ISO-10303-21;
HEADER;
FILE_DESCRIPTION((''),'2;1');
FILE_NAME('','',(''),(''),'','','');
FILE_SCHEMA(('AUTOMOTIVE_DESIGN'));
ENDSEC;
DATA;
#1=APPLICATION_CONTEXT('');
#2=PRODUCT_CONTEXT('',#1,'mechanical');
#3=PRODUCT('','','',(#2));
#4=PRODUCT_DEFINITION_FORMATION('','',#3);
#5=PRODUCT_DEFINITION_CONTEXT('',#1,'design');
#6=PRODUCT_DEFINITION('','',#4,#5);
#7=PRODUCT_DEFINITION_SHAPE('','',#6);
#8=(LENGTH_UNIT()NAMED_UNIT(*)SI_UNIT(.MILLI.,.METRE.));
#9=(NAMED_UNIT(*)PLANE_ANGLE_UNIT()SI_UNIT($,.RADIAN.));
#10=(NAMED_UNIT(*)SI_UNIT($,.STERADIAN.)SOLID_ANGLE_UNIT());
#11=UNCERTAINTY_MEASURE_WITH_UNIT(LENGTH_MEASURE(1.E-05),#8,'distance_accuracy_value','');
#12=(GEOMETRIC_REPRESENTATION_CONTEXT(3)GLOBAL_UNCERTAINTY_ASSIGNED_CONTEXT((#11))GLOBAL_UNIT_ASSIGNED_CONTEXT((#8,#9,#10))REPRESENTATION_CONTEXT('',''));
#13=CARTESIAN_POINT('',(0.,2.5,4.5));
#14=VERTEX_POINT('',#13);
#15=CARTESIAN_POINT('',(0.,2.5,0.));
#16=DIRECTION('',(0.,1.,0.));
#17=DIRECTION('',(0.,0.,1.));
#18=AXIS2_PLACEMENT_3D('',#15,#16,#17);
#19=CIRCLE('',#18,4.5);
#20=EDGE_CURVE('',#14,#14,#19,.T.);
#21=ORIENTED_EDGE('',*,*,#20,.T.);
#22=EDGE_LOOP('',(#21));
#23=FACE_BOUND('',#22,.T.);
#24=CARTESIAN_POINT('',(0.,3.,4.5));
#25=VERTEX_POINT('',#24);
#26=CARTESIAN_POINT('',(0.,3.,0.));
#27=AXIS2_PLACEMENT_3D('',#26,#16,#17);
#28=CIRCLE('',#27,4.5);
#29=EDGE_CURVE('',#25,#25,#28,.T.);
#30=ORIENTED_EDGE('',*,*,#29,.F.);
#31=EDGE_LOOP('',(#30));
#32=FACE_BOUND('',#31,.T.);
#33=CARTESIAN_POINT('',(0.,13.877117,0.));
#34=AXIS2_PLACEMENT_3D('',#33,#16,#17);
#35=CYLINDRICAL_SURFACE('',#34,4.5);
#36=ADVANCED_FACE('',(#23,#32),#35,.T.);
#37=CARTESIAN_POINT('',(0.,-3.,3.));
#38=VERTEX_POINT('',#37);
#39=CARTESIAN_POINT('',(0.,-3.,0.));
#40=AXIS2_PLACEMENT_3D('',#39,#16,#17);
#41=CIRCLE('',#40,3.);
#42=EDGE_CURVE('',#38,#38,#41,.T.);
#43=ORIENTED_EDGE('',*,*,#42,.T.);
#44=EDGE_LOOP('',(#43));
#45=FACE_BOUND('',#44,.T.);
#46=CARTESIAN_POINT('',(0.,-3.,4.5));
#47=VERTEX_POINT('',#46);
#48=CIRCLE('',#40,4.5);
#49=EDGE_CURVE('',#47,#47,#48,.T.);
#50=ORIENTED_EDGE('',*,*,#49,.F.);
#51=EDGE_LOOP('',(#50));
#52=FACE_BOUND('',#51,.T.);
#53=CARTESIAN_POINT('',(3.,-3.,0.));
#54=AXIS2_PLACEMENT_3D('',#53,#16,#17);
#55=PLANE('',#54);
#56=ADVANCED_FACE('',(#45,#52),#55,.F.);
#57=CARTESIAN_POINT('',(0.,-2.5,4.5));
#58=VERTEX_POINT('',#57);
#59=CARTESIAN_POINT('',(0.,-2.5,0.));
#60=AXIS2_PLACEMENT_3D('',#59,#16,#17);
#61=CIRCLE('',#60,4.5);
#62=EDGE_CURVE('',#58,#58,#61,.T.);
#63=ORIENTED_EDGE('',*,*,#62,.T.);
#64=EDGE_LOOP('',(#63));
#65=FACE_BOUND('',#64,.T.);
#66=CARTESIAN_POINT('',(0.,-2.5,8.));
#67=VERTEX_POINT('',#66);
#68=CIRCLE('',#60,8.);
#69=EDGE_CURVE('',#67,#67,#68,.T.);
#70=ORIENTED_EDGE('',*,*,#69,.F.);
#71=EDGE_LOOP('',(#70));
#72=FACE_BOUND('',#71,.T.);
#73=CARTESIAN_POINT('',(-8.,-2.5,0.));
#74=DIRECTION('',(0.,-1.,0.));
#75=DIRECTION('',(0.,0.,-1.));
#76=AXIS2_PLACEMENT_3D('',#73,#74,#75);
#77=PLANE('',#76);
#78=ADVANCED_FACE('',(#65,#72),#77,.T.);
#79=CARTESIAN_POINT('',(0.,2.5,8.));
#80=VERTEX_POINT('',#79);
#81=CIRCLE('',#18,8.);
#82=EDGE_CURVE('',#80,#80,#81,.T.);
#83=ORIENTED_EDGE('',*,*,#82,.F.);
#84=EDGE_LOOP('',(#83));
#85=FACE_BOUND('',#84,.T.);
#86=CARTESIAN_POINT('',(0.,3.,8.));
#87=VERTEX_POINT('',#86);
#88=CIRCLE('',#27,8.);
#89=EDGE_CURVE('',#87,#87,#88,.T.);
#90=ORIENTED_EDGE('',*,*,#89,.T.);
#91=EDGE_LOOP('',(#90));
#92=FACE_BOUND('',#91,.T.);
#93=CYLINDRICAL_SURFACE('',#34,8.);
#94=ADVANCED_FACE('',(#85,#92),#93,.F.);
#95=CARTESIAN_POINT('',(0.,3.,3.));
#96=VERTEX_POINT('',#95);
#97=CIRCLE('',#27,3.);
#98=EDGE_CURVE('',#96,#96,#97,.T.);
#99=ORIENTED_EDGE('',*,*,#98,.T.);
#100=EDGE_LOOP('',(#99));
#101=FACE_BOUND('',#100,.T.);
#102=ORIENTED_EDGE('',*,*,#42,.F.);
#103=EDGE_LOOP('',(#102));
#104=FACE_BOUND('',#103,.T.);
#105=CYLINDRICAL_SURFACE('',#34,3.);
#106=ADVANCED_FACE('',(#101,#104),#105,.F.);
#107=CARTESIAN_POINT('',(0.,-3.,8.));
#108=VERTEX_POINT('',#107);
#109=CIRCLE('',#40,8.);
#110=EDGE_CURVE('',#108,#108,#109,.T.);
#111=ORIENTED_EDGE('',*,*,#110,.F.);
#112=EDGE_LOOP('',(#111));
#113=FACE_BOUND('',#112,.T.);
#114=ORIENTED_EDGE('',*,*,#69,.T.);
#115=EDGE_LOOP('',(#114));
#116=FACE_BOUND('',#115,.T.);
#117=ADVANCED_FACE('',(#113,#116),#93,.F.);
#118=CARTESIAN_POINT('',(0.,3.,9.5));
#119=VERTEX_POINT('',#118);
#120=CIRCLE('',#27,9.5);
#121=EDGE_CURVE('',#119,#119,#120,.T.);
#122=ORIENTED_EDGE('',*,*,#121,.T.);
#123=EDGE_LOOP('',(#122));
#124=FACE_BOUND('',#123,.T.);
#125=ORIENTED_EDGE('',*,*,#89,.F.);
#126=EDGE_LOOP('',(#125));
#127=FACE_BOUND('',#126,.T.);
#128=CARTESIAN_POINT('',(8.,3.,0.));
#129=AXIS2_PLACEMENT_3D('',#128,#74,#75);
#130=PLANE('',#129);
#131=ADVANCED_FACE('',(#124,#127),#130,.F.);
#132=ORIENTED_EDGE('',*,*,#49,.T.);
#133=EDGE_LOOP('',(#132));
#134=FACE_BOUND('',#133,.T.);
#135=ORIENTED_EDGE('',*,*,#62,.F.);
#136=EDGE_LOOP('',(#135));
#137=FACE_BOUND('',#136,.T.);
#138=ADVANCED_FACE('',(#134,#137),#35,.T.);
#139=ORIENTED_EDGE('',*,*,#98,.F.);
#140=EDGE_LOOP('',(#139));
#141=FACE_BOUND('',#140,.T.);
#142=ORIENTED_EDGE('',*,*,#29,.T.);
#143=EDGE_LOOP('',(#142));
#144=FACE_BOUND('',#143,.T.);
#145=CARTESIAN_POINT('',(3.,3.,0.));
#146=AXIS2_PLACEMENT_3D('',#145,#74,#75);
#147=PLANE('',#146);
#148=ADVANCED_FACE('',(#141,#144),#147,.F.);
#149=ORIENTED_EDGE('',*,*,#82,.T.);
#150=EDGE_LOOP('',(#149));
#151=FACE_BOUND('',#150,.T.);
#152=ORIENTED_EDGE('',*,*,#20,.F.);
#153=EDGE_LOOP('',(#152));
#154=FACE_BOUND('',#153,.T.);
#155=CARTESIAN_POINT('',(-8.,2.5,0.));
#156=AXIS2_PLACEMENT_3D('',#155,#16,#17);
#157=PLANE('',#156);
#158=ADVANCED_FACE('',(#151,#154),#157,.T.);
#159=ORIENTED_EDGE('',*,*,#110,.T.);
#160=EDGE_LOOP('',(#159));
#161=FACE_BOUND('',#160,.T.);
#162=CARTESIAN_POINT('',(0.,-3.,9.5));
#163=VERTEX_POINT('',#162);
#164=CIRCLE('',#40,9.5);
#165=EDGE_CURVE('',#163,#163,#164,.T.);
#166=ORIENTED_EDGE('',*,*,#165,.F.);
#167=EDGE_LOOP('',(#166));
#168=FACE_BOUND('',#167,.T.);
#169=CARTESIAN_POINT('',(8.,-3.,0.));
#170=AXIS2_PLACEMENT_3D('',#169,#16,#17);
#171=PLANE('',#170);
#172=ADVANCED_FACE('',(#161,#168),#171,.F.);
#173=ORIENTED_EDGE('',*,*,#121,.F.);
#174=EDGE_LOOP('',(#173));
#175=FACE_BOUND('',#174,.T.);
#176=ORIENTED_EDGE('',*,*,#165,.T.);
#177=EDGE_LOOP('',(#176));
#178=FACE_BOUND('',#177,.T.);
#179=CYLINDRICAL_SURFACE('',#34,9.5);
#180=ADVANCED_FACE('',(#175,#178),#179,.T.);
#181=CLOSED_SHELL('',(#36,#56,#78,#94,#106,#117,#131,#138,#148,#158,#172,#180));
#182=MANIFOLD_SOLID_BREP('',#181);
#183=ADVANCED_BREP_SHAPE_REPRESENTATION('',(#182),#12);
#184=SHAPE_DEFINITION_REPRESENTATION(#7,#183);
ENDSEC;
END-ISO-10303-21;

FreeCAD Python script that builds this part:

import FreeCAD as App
import Part
import Sketcher

V = App.Vector

doc = App.newDocument("Part")
params = doc.addObject("Spreadsheet::Sheet", "Params")
for row, (alias, value) in enumerate([
    ("sketch1_height", "6 mm"),
    ("sketch1_width", "1.5 mm"),
    ("revolution_angle", "360 deg"),
    ("sketch2_height", "5 mm"),
    ("sketch2_width", "3.5 mm"),
    ("revolution2_angle", "360 deg"),
], start=1):
    params.set(f"A{row}", alias)
    params.set(f"B{row}", "=" + value)
    params.setAlias(f"B{row}", alias)

body = doc.addObject("PartDesign::Body", "Body")
body.AllowCompound = True

# Sketch on XY plane
sketch1 = doc.addObject("Sketcher::SketchObject", "Sketch")
body.addObject(sketch1)
sketch1.AttachmentSupport = (doc.XY_Plane, [""])
sketch1.MapMode = "FlatFace"
sketch1.addGeometry(Part.LineSegment(V(3, 3, 0), V(3, -3, 0)), False)
sketch1.addGeometry(Part.LineSegment(V(3, -3, 0), V(4.5, -3, 0)), False)
sketch1.addGeometry(Part.LineSegment(V(4.5, -3, 0), V(4.5, 3, 0)), False)
sketch1.addGeometry(Part.LineSegment(V(4.5, 3, 0), V(3, 3, 0)), False)
sketch1.addGeometry(Part.LineSegment(V(8, 3, 0), V(8, -3, 0)), False)
sketch1.addGeometry(Part.LineSegment(V(8, -3, 0), V(9.5, -3, 0)), False)
sketch1.addGeometry(Part.LineSegment(V(9.5, -3, 0), V(9.5, 3, 0)), False)
sketch1.addGeometry(Part.LineSegment(V(9.5, 3, 0), V(8, 3, 0)), False)
sketch1.addConstraint(Sketcher.Constraint("Coincident", 0, 2, 1, 1))
sketch1.addConstraint(Sketcher.Constraint("Coincident", 1, 2, 2, 1))
sketch1.addConstraint(Sketcher.Constraint("Coincident", 2, 2, 3, 1))
sketch1.addConstraint(Sketcher.Constraint("Coincident", 3, 2, 0, 1))
sketch1.addConstraint(Sketcher.Constraint("Coincident", 4, 2, 5, 1))
sketch1.addConstraint(Sketcher.Constraint("Coincident", 5, 2, 6, 1))
sketch1.addConstraint(Sketcher.Constraint("Coincident", 6, 2, 7, 1))
sketch1.addConstraint(Sketcher.Constraint("Coincident", 7, 2, 4, 1))
sketch1.addConstraint(Sketcher.Constraint("Vertical", 0))
sketch1.addConstraint(Sketcher.Constraint("Horizontal", 1))
sketch1.addConstraint(Sketcher.Constraint("Vertical", 2))
sketch1.addConstraint(Sketcher.Constraint("Horizontal", 3))
sketch1.addConstraint(Sketcher.Constraint("Vertical", 4))
sketch1.addConstraint(Sketcher.Constraint("Horizontal", 5))
sketch1.addConstraint(Sketcher.Constraint("Vertical", 6))
sketch1.addConstraint(Sketcher.Constraint("Horizontal", 7))
sketch1.addConstraint(Sketcher.Constraint("Horizontal", 1, 2, 4, 2))
sketch1.addConstraint(Sketcher.Constraint("Horizontal", 3, 2, 6, 2))
sketch1.addConstraint(Sketcher.Constraint("Equal", 3, 5))
sketch1.addConstraint(Sketcher.Constraint("DistanceY", 0, 2, 0, 1, 6.0))
sketch1.addConstraint(Sketcher.Constraint("DistanceX", 1, 1, 1, 2, 1.5))
sketch1.addConstraint(Sketcher.Constraint("DistanceX", -1, 1, 0, 2, 3.0))
sketch1.addConstraint(Sketcher.Constraint("DistanceY", 0, 2, -1, 1, 3.0))
sketch1.addConstraint(Sketcher.Constraint("DistanceX", -1, 1, 4, 2, 8.0))
sketch1.setExpression("Constraints[19]", "Params.sketch1_height")
sketch1.setExpression("Constraints[20]", "Params.sketch1_width")
revolution = doc.addObject("PartDesign::Revolution", "Revolution")
body.addObject(revolution)
revolution.Profile = sketch1
revolution.ReferenceAxis = (sketch1, ["V_Axis"])
revolution.setExpression("Angle", "Params.revolution_angle")

# Sketch on XY plane
sketch2 = doc.addObject("Sketcher::SketchObject", "Sketch001")
body.addObject(sketch2)
sketch2.AttachmentSupport = (doc.XY_Plane, [""])
sketch2.MapMode = "FlatFace"
sketch2.addGeometry(Part.LineSegment(V(-8, 2.5, 0), V(-8, -2.5, 0)), False)
sketch2.addGeometry(Part.LineSegment(V(-8, -2.5, 0), V(-4.5, -2.5, 0)), False)
sketch2.addGeometry(Part.LineSegment(V(-4.5, -2.5, 0), V(-4.5, 2.5, 0)), False)
sketch2.addGeometry(Part.LineSegment(V(-4.5, 2.5, 0), V(-8, 2.5, 0)), False)
sketch2.addConstraint(Sketcher.Constraint("Coincident", 0, 2, 1, 1))
sketch2.addConstraint(Sketcher.Constraint("Coincident", 1, 2, 2, 1))
sketch2.addConstraint(Sketcher.Constraint("Coincident", 2, 2, 3, 1))
sketch2.addConstraint(Sketcher.Constraint("Coincident", 3, 2, 0, 1))
sketch2.addConstraint(Sketcher.Constraint("Vertical", 0))
sketch2.addConstraint(Sketcher.Constraint("Horizontal", 1))
sketch2.addConstraint(Sketcher.Constraint("Vertical", 2))
sketch2.addConstraint(Sketcher.Constraint("Horizontal", 3))
sketch2.addConstraint(Sketcher.Constraint("DistanceY", 0, 2, 0, 1, 5.0))
sketch2.addConstraint(Sketcher.Constraint("DistanceX", 1, 1, 1, 2, 3.5))
sketch2.addConstraint(Sketcher.Constraint("DistanceX", 0, 2, -1, 1, 8.0))
sketch2.addConstraint(Sketcher.Constraint("DistanceY", 0, 2, -1, 1, 2.5))
sketch2.setExpression("Constraints[8]", "Params.sketch2_height")
sketch2.setExpression("Constraints[9]", "Params.sketch2_width")
revolution2 = doc.addObject("PartDesign::Revolution", "Revolution001")
body.addObject(revolution2)
revolution2.Profile = sketch2
revolution2.ReferenceAxis = (sketch2, ["V_Axis"])
revolution2.setExpression("Angle", "Params.revolution2_angle")

doc.recompute()
